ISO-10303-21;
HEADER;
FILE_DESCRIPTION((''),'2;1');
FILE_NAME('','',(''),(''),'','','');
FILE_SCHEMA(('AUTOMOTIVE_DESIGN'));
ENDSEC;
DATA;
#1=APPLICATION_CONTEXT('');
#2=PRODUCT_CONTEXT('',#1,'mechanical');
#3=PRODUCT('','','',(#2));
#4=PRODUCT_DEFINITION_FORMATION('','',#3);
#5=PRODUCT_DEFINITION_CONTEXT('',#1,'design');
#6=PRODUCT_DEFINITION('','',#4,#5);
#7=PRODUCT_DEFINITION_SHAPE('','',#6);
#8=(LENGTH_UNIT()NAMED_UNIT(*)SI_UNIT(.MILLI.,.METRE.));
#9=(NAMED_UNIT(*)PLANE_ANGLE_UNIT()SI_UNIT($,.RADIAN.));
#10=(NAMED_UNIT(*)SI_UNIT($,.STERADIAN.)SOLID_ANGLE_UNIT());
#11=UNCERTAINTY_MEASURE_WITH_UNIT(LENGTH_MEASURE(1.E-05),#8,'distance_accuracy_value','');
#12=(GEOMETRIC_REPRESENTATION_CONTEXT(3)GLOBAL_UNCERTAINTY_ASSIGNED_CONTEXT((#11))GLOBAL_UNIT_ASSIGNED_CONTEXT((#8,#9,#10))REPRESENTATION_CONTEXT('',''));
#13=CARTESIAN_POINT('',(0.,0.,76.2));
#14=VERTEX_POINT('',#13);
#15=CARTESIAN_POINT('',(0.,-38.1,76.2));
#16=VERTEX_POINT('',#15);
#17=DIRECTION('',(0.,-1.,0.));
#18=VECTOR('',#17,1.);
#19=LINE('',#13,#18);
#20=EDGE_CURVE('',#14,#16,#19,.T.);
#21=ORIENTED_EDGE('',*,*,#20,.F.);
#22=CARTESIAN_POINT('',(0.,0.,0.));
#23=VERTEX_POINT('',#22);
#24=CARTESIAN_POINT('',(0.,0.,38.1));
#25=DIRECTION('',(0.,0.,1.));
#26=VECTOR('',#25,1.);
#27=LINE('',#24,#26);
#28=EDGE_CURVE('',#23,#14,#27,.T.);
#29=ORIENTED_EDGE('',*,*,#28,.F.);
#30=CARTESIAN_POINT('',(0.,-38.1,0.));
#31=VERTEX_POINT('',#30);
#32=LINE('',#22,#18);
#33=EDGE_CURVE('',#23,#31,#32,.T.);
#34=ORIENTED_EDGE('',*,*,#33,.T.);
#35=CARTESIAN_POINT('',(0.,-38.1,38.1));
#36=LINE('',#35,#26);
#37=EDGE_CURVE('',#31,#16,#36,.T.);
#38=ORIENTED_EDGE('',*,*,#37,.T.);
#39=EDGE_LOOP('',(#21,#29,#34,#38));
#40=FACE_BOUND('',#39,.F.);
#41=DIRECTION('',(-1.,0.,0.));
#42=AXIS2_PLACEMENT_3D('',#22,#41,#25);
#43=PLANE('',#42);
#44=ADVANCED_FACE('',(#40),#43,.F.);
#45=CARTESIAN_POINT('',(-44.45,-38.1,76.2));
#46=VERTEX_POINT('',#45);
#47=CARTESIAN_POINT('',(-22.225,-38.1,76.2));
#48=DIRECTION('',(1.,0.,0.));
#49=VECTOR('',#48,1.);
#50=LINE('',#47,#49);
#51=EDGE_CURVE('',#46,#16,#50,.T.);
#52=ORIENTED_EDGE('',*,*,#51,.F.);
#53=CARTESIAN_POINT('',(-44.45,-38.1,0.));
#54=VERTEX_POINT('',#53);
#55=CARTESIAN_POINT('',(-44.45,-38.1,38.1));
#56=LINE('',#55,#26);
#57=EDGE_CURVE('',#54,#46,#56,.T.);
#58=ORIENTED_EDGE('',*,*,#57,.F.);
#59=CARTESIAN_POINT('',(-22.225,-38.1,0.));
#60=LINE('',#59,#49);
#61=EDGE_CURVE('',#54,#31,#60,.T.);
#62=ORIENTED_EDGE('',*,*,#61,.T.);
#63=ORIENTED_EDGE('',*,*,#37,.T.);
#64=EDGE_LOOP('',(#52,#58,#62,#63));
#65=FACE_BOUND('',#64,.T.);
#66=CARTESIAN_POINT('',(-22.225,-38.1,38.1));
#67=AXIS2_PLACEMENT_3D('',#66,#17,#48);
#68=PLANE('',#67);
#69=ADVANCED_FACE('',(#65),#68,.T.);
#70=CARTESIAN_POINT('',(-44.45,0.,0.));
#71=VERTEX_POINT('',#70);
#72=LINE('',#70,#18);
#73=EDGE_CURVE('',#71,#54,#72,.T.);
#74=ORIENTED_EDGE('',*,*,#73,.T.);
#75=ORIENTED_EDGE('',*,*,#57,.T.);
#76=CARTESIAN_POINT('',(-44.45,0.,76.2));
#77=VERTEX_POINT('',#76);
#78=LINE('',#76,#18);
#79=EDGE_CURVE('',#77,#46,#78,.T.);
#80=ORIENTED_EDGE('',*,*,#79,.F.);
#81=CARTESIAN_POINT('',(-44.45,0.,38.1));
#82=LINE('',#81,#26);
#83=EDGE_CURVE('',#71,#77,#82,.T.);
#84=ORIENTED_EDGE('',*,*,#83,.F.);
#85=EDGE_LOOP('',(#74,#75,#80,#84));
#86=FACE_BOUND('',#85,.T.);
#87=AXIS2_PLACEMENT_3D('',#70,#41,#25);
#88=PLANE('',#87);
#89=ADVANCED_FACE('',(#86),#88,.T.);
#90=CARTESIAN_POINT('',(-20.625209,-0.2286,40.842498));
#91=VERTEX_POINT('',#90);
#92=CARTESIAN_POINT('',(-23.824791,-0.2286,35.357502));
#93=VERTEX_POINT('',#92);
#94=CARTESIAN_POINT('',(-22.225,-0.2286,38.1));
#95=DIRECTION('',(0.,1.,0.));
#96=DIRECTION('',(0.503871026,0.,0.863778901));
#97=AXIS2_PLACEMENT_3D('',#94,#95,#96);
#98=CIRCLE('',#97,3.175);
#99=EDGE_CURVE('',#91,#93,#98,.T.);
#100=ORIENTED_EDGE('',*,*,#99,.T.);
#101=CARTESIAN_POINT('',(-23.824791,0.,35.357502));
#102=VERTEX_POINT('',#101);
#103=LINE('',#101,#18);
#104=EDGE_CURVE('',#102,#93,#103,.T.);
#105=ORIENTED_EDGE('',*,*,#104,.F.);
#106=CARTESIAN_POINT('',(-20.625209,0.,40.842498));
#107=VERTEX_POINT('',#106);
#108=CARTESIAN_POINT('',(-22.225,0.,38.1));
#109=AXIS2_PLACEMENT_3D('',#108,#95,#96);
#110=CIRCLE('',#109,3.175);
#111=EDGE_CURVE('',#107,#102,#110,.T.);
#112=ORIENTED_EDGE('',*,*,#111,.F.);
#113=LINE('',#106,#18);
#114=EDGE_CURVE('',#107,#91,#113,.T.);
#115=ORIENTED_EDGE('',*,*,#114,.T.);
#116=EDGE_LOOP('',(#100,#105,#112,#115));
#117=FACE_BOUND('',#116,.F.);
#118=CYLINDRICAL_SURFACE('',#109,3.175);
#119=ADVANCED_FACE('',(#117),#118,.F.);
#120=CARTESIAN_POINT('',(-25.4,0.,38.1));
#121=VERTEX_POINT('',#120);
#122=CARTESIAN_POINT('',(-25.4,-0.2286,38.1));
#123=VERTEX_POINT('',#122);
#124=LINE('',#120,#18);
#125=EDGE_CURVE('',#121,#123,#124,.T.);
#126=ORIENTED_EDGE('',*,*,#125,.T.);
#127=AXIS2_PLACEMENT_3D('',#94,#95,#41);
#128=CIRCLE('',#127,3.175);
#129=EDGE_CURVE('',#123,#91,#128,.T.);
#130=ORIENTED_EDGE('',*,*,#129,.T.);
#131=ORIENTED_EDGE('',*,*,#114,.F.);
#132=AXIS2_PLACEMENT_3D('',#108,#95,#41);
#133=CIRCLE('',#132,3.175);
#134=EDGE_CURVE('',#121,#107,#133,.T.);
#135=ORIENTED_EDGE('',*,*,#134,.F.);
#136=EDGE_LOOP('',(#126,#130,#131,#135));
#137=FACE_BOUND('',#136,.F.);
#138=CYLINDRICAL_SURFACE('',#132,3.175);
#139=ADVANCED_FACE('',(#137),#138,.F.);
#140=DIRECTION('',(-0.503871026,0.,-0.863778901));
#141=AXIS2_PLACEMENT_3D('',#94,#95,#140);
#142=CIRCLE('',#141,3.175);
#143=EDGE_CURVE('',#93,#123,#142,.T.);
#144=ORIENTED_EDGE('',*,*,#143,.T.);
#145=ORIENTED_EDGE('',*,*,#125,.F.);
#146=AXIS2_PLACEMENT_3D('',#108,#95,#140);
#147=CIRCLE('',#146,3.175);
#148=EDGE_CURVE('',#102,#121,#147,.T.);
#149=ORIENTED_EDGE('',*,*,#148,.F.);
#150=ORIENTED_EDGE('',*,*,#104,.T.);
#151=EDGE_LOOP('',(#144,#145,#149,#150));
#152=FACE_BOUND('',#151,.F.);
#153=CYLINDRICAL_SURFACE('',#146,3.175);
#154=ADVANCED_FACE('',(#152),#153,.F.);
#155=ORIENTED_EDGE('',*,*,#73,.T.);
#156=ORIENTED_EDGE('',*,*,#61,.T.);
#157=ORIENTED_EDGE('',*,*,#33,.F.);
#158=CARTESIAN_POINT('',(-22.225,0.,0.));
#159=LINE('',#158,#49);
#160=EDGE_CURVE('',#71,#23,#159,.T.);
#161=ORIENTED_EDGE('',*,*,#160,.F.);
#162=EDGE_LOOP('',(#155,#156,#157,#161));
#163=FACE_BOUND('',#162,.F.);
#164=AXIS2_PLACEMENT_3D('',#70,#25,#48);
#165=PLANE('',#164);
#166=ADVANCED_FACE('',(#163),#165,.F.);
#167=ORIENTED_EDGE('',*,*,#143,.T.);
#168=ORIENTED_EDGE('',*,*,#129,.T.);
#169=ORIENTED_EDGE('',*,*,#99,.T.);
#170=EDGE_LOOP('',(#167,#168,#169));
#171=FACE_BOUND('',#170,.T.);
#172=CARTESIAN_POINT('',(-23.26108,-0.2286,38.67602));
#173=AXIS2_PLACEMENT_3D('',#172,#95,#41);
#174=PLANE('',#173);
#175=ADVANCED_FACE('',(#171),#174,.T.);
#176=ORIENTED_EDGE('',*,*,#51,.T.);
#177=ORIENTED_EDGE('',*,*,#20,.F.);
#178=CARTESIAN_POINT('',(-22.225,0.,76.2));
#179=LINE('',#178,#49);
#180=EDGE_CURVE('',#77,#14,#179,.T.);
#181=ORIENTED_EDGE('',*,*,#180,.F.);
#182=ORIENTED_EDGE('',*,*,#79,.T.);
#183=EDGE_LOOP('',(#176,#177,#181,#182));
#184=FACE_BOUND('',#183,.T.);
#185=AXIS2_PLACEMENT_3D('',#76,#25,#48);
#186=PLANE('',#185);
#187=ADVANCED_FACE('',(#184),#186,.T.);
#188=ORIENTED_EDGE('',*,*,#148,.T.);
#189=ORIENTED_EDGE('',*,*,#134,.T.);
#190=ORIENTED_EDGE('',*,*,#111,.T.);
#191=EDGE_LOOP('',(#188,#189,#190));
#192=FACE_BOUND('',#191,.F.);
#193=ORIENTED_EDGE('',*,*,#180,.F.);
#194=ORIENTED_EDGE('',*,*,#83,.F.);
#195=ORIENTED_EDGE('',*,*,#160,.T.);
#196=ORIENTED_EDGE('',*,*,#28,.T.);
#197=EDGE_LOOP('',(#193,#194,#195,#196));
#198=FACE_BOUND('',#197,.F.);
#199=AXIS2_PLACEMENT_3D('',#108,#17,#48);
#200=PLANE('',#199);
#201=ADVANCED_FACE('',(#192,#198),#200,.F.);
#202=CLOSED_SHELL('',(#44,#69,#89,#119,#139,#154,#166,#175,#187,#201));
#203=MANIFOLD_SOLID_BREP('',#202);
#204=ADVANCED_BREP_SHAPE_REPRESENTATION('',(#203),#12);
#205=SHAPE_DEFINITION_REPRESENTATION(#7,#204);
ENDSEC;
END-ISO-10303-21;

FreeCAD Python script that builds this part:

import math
import FreeCAD as App
import Part
import Sketcher
from FreeCAD import Vector
Q = App.Units.Quantity


def add_polygon(sketch, points):
    """Adds a closed chain of lines whose ends are joined by coincident constraints."""
    first, n = sketch.GeometryCount, len(points)
    for a, b in zip(points, points[1:] + points[:1]):
        sketch.addGeometry(Part.LineSegment(App.Vector(*a, 0), App.Vector(*b, 0)), False)
    for i in range(n):
        sketch.addConstraint(Sketcher.Constraint("Coincident", first + i, 2, first + (i + 1) % n, 1))

doc = App.newDocument("Part")
body = doc.addObject("PartDesign::Body", "Body")

# Sketch on XZ plane
sketch1 = doc.addObject("Sketcher::SketchObject", "Sketch")
body.addObject(sketch1)
sketch1.AttachmentSupport = (doc.XZ_Plane, [""])
sketch1.MapMode = "FlatFace"
add_polygon(sketch1, [(-44.45, 76.2), (-44.45, 0), (0, 0), (0, 76.2)])  # lines 0-3
sketch1.addConstraint(Sketcher.Constraint("Vertical", 0))
sketch1.addConstraint(Sketcher.Constraint("Horizontal", 1))
sketch1.addConstraint(Sketcher.Constraint("Vertical", 2))
sketch1.addConstraint(Sketcher.Constraint("Horizontal", 3))
sketch1.addConstraint(Sketcher.Constraint("Coincident", 1, 2, -1, 1))
sketch1.addConstraint(Sketcher.Constraint("DistanceY", 0, 2, 0, 1, Q("3 in")))
sketch1.addConstraint(Sketcher.Constraint("DistanceX", 1, 1, 1, 2, Q("1.75 in")))
pad1 = doc.addObject("PartDesign::Pad", "Pad")
body.addObject(pad1)
pad1.Profile = sketch1
pad1.Length = Q("1.5 in")

# Sketch on XZ plane
sketch2 = doc.addObject("Sketcher::SketchObject", "Sketch001")
body.addObject(sketch2)
sketch2.AttachmentSupport = (doc.XZ_Plane, [""])
sketch2.MapMode = "FlatFace"
sketch2.addGeometry(Part.ArcOfCircle(Part.Circle(Vector(-22.225, 38.1, 0), Vector(0, 0, 1), 3.175), math.radians(59.743563), math.radians(180)), False)
sketch2.addGeometry(Part.ArcOfCircle(Part.Circle(Vector(-22.225, 38.1, 0), Vector(0, 0, 1), 3.175), math.radians(-120.256437), math.radians(59.743563)), False)
sketch2.addGeometry(Part.ArcOfCircle(Part.Circle(Vector(-22.225, 38.1, 0), Vector(0, 0, 1), 3.175), math.radians(180), math.radians(239.743563)), False)
sketch2.addConstraint(Sketcher.Constraint("Tangent", 0, 1, 1, 2))
sketch2.addConstraint(Sketcher.Constraint("Tangent", 1, 1, 2, 2))
sketch2.addConstraint(Sketcher.Constraint("Tangent", 2, 1, 0, 2))
sketch2.addConstraint(Sketcher.Constraint("Horizontal", 1, 3, 2, 1))
sketch2.addConstraint(Sketcher.Constraint("DistanceX", 2, 1, -1, 1, Q("1 in")))
sketch2.addConstraint(Sketcher.Constraint("Radius", 0, Q("0.125 in")))
sketch2.addConstraint(Sketcher.Constraint("DistanceY", -1, 1, 0, 3, Q("1.5 in")))
sketch2.addConstraint(Sketcher.Constraint("DistanceY", -1, 1, 0, 1, 40.842498))
sketch2.addConstraint(Sketcher.Constraint("DistanceY", -1, 1, 1, 1, 35.357502))
pocket1 = doc.addObject("PartDesign::Pocket", "Pocket")
body.addObject(pocket1)
pocket1.Profile = sketch2
pocket1.Length = Q("0.009 in")
pocket1.Reversed = True

doc.recompute()
